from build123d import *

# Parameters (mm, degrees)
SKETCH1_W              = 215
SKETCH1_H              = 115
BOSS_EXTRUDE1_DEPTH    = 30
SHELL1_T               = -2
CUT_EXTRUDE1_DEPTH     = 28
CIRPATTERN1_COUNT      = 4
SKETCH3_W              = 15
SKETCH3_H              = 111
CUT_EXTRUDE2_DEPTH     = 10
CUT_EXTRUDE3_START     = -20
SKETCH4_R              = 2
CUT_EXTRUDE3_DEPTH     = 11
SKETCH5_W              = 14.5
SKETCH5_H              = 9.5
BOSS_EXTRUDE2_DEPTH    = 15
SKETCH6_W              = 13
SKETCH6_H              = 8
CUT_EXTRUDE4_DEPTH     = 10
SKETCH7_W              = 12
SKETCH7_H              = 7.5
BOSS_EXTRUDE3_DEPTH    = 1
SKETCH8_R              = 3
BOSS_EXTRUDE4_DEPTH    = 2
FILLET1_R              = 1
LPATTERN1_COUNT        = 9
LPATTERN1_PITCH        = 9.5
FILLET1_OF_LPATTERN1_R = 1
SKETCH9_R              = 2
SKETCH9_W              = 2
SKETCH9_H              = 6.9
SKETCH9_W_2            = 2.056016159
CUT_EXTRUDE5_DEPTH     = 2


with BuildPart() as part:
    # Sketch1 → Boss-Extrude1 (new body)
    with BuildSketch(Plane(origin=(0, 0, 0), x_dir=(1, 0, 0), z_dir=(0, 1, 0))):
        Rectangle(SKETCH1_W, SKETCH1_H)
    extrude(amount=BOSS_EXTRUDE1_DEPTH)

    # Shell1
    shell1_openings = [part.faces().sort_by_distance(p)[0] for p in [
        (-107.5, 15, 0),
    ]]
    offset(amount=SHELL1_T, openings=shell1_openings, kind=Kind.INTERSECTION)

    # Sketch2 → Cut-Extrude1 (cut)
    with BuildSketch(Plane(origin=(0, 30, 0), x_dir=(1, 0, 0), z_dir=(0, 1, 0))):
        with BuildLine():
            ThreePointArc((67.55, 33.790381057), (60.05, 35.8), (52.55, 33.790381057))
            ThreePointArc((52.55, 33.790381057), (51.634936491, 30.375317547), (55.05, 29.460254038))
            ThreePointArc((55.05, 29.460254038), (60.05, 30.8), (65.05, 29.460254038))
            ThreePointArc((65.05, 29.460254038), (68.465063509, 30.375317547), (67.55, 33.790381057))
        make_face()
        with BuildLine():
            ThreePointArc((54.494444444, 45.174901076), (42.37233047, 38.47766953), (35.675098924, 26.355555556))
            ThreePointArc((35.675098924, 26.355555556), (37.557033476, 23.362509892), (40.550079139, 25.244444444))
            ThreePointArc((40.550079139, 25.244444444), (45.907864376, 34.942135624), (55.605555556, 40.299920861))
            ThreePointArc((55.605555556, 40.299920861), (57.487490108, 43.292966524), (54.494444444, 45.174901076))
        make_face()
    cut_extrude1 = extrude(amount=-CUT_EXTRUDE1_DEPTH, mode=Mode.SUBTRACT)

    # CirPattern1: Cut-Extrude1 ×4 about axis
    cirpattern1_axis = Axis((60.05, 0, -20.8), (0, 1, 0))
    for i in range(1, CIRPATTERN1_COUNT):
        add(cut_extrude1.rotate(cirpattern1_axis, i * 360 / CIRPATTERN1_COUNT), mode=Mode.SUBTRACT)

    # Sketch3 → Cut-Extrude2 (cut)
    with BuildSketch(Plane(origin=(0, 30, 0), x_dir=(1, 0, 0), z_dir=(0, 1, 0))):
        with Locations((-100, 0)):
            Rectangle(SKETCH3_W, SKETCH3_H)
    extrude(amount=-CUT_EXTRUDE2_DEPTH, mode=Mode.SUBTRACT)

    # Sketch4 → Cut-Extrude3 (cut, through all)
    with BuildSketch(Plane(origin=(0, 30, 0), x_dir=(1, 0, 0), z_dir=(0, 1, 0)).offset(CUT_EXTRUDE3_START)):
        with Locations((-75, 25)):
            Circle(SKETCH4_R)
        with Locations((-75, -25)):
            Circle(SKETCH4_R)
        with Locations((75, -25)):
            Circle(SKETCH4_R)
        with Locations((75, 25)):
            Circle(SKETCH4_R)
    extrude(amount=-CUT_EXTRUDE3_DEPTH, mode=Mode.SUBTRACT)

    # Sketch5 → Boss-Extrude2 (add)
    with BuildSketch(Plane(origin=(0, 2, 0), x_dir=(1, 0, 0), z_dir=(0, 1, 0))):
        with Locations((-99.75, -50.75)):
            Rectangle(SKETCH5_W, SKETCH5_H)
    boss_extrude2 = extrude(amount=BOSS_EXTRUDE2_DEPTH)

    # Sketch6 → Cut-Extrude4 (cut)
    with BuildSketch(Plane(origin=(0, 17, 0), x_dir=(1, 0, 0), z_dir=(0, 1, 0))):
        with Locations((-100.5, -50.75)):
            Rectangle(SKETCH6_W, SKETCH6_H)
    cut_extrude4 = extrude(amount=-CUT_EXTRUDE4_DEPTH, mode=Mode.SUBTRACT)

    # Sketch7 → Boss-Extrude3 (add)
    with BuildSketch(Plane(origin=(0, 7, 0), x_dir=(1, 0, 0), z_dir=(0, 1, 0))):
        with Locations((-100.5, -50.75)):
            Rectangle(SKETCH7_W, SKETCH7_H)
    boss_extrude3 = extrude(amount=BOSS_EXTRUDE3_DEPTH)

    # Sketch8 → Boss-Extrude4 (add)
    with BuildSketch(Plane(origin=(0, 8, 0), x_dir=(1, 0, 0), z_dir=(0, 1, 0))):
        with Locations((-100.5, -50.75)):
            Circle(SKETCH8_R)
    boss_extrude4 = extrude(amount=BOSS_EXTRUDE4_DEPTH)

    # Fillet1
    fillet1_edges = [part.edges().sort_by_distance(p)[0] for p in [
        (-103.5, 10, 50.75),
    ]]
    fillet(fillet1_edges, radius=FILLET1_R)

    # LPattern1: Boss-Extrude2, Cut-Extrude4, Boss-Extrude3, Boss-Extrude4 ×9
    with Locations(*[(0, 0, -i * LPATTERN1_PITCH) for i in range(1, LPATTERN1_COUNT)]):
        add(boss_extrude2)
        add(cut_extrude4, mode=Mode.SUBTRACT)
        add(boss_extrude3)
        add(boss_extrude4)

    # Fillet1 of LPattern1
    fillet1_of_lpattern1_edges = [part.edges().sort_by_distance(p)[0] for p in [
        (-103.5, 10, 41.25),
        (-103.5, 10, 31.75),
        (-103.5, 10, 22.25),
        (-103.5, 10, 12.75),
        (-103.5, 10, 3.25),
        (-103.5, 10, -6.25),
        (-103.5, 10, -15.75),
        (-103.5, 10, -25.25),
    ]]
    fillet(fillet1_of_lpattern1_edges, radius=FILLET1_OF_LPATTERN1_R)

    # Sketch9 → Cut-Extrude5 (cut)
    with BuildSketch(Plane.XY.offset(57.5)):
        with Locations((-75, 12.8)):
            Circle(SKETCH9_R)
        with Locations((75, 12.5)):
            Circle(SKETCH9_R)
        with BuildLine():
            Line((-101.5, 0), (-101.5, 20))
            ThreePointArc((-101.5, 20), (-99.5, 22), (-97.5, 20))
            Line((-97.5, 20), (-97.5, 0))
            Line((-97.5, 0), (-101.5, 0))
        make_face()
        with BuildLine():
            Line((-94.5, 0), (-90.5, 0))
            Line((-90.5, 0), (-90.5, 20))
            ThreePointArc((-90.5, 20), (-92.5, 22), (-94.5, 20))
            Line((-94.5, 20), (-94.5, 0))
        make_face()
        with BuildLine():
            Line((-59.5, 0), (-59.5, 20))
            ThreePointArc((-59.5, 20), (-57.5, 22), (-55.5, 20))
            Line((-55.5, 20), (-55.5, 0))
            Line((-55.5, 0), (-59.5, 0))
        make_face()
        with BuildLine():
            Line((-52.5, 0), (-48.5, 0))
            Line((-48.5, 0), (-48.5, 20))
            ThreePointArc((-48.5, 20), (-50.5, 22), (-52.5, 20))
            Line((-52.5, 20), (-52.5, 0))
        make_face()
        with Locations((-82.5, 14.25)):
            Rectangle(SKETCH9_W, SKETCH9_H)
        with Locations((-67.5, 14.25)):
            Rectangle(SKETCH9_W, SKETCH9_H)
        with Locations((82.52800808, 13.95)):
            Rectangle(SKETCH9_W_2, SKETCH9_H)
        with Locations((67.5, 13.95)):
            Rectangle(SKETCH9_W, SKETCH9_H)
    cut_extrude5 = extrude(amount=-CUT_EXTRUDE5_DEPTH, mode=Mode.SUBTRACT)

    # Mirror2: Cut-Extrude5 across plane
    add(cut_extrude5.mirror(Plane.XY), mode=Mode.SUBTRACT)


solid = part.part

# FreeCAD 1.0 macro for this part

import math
import FreeCAD as App
import Part
import Sketcher
from FreeCAD import Vector
Q = App.Units.Quantity


def edges_at(feature, points):
    """Names of the edges that pass closest to the given points."""
    edges = feature.Shape.Edges
    near = lambda p: min(range(len(edges)), key=lambda i: edges[i].distToShape(Part.Vertex(*p))[0])
    return sorted({f"Edge{near(p) + 1}" for p in points})


def faces_at(feature, points):
    """Names of the faces that lie closest to the given points."""
    faces = feature.Shape.Faces
    near = lambda p: min(range(len(faces)), key=lambda i: faces[i].distToShape(Part.Vertex(*p))[0])
    return sorted({f"Face{near(p) + 1}" for p in points})

doc = App.newDocument("Part")
body = doc.addObject("PartDesign::Body", "Body")

# Sketch on XZ plane
sketch1 = body.newObject("Sketcher::SketchObject", "Sketch")
sketch1.AttachmentSupport = (doc.getObject("XZ_Plane"), [""])
sketch1.MapMode = "FlatFace"
sketch1.addGeometry([
    Part.LineSegment(Vector(-108, -58, 0), Vector(-108, 58, 0)),
    Part.LineSegment(Vector(-108, 58, 0), Vector(108, 58, 0)),
    Part.LineSegment(Vector(108, 58, 0), Vector(108, -58, 0)),
    Part.LineSegment(Vector(108, -58, 0), Vector(-108, -58, 0)),
], False)
sketch1.addConstraint([
    Sketcher.Constraint("Coincident", 0, 2, 1, 1),
    Sketcher.Constraint("Coincident", 1, 2, 2, 1),
    Sketcher.Constraint("Coincident", 2, 2, 3, 1),
    Sketcher.Constraint("Coincident", 3, 2, 0, 1),
    Sketcher.Constraint("Vertical", 0),
    Sketcher.Constraint("Horizontal", 1),
    Sketcher.Constraint("Vertical", 2),
    Sketcher.Constraint("Horizontal", 3),
    Sketcher.Constraint("Symmetric", 0, 2, 2, 2, -1, 1),
    Sketcher.Constraint("DistanceX", 1, 1, 1, 2, Q("215 mm")),
    Sketcher.Constraint("DistanceY", 0, 1, 0, 2, Q("115 mm")),
])
pad1 = body.newObject("PartDesign::Pad", "Pad")
pad1.Profile = sketch1
pad1.Length = 30
pad1.Reversed = True
doc.recompute()

thickness = body.newObject("PartDesign::Thickness", "Thickness")
thickness.Base = (pad1, faces_at(pad1, [(-107.5, 15, 0)]))
thickness.Value = 2
thickness.Reversed = True
thickness.Join = "Intersection"

# Sketch on XZ plane
sketch2 = body.newObject("Sketcher::SketchObject", "Sketch001")
sketch2.AttachmentSupport = (doc.getObject("XZ_Plane"), [""])
sketch2.MapMode = "FlatFace"
sketch2.AttachmentOffset = App.Placement(Vector(0, 0, -30), App.Rotation())
sketch2.addGeometry([
    Part.ArcOfCircle(Part.Circle(Vector(60, -20.8, 0), Vector(0, 0, 1), 15), math.radians(-120), math.radians(-60)),  # 0
    Part.ArcOfCircle(Part.Circle(Vector(53.8, -31.6, 0), Vector(0, 0, 1), 2.5), math.radians(60), math.radians(240)),  # 1
    Part.ArcOfCircle(Part.Circle(Vector(60, -20.8, 0), Vector(0, 0, 1), 10), math.radians(-120), math.radians(-60)),  # 2
    Part.ArcOfCircle(Part.Circle(Vector(66.3, -31.6, 0), Vector(0, 0, 1), 2.5), math.radians(-60), math.radians(120)),  # 3
    Part.ArcOfCircle(Part.Circle(Vector(60, -20.8, 0), Vector(0, 0, 1), 25), math.radians(-167), math.radians(-103)),  # 4
    Part.ArcOfCircle(Part.Circle(Vector(38.1, -25.8, 0), Vector(0, 0, 1), 2.5), math.radians(13), math.radians(193)),  # 5
    Part.ArcOfCircle(Part.Circle(Vector(60, -20.8, 0), Vector(0, 0, 1), 20), math.radians(-167), math.radians(-103)),  # 6
    Part.ArcOfCircle(Part.Circle(Vector(55, -42.7, 0), Vector(0, 0, 1), 2.5), math.radians(-103), math.radians(77)),  # 7
], False)
sketch2.addConstraint([
    Sketcher.Constraint("Tangent", 0, 1, 1, 2),
    Sketcher.Constraint("Tangent", 1, 1, 2, 1),
    Sketcher.Constraint("Tangent", 2, 2, 3, 2),
    Sketcher.Constraint("Tangent", 3, 1, 0, 2),
    Sketcher.Constraint("Tangent", 4, 1, 5, 2),
    Sketcher.Constraint("Tangent", 5, 1, 6, 1),
    Sketcher.Constraint("Tangent", 6, 2, 7, 2),
    Sketcher.Constraint("Tangent", 7, 1, 4, 2),
    Sketcher.Constraint("Coincident", 2, 3, 0, 3),
    Sketcher.Constraint("Coincident", 4, 3, 0, 3),
    Sketcher.Constraint("Coincident", 6, 3, 0, 3),
    Sketcher.Constraint("Equal", 3, 5),
    Sketcher.Constraint("Horizontal", 1, 3, 3, 3),
    Sketcher.Constraint("Vertical", 7, 3, 1, 1),
    Sketcher.Constraint("Radius", 0, Q("15 mm")),
    Sketcher.Constraint("Radius", 2, Q("10 mm")),
    Sketcher.Constraint("Radius", 4, Q("25 mm")),
    Sketcher.Constraint("DistanceY", 5, 3, 4, 3, Q("5 mm")),
    Sketcher.Constraint("DistanceX", 7, 3, 4, 3, Q("5 mm")),
    Sketcher.Constraint("DistanceY", 0, 3, -1, 1, Q("20.8 mm")),
    Sketcher.Constraint("DistanceX", -1, 1, 1, 3, Q("53.8 mm")),
])
pocket1 = body.newObject("PartDesign::Pocket", "Pocket")
pocket1.Profile = sketch2
pocket1.Length = 28
pocket1.Reversed = True
doc.recompute()

datumline = body.newObject("PartDesign::Line", "DatumLine")
datumline.Placement = App.Placement(Vector(60.05, 0, -20.8), App.Rotation(Vector(0, 0, 1), Vector(0, 1, 0)))
polarpattern = body.newObject("PartDesign::PolarPattern", "PolarPattern")
polarpattern.Originals = [pocket1]
polarpattern.Axis = (datumline, [""])
polarpattern.Angle = 360
polarpattern.Occurrences = 4
body.Tip = polarpattern

# Sketch on XZ plane
sketch3 = body.newObject("Sketcher::SketchObject", "Sketch002")
sketch3.AttachmentSupport = (doc.getObject("XZ_Plane"), [""])
sketch3.MapMode = "FlatFace"
sketch3.AttachmentOffset = App.Placement(Vector(0, 0, -30), App.Rotation())
sketch3.addGeometry([
    Part.LineSegment(Vector(-108, -56, 0), Vector(-108, 56, 0)),
    Part.LineSegment(Vector(-108, 56, 0), Vector(-92, 56, 0)),
    Part.LineSegment(Vector(-92, 56, 0), Vector(-92, -56, 0)),
    Part.LineSegment(Vector(-92, -56, 0), Vector(-108, -56, 0)),
], False)
sketch3.addConstraint([
    Sketcher.Constraint("Coincident", 0, 2, 1, 1),
    Sketcher.Constraint("Coincident", 1, 2, 2, 1),
    Sketcher.Constraint("Coincident", 2, 2, 3, 1),
    Sketcher.Constraint("Coincident", 3, 2, 0, 1),
    Sketcher.Constraint("Vertical", 0),
    Sketcher.Constraint("Horizontal", 1),
    Sketcher.Constraint("Vertical", 2),
    Sketcher.Constraint("Horizontal", 3),
    Sketcher.Constraint("DistanceX", 1, 1, 1, 2, Q("15 mm")),
    Sketcher.Constraint("DistanceY", 0, 1, 0, 2, Q("111 mm")),
    Sketcher.Constraint("DistanceX", 0, 2, -1, 1, Q("107.5 mm")),
    Sketcher.Constraint("DistanceY", -1, 1, 0, 2, Q("55.5 mm")),
])
pocket2 = body.newObject("PartDesign::Pocket", "Pocket001")
pocket2.Profile = sketch3
pocket2.Length = 10
pocket2.Reversed = True

# Sketch on XZ plane
sketch4 = body.newObject("Sketcher::SketchObject", "Sketch003")
sketch4.AttachmentSupport = (doc.getObject("XZ_Plane"), [""])
sketch4.MapMode = "FlatFace"
sketch4.AttachmentOffset = App.Placement(Vector(0, 0, -10), App.Rotation())
sketch4.addGeometry([
    Part.Circle(Vector(-75, -25, 0), Vector(0, 0, 1), 2),
    Part.Circle(Vector(-75, 25, 0), Vector(0, 0, 1), 2),
    Part.Circle(Vector(75, 25, 0), Vector(0, 0, 1), 2),
    Part.Circle(Vector(75, -25, 0), Vector(0, 0, 1), 2),
], False)
sketch4.addConstraint([
    Sketcher.Constraint("Equal", 0, 1),
    Sketcher.Constraint("Equal", 1, 2),
    Sketcher.Constraint("Equal", 2, 3),
    Sketcher.Constraint("Symmetric", 0, 3, 2, 3, -1, 1),
    Sketcher.Constraint("Symmetric", 1, 3, 3, 3, -1, 1),
    Sketcher.Constraint("Symmetric", 1, 3, 2, 3, -2),
    Sketcher.Constraint("Diameter", 0, Q("4 mm")),
    Sketcher.Constraint("DistanceX", 0, 3, -1, 1, Q("75 mm")),
    Sketcher.Constraint("DistanceY", 0, 3, -1, 1, Q("25 mm")),
])
pocket3 = body.newObject("PartDesign::Pocket", "Pocket002")
pocket3.Profile = sketch4
pocket3.Type = "ThroughAll"
pocket3.Reversed = True

# Sketch on XZ plane
sketch5 = body.newObject("Sketcher::SketchObject", "Sketch004")
sketch5.AttachmentSupport = (doc.getObject("XZ_Plane"), [""])
sketch5.MapMode = "FlatFace"
sketch5.AttachmentOffset = App.Placement(Vector(0, 0, -2), App.Rotation())
sketch5.addGeometry([
    Part.LineSegment(Vector(-107, 46, 0), Vector(-107, 56, 0)),
    Part.LineSegment(Vector(-107, 56, 0), Vector(-92, 56, 0)),
    Part.LineSegment(Vector(-92, 56, 0), Vector(-92, 46, 0)),
    Part.LineSegment(Vector(-92, 46, 0), Vector(-107, 46, 0)),
], False)
sketch5.addConstraint([
    Sketcher.Constraint("Coincident", 0, 2, 1, 1),
    Sketcher.Constraint("Coincident", 1, 2, 2, 1),
    Sketcher.Constraint("Coincident", 2, 2, 3, 1),
    Sketcher.Constraint("Coincident", 3, 2, 0, 1),
    Sketcher.Constraint("Vertical", 0),
    Sketcher.Constraint("Horizontal", 1),
    Sketcher.Constraint("Vertical", 2),
    Sketcher.Constraint("Horizontal", 3),
    Sketcher.Constraint("DistanceX", 1, 1, 1, 2, Q("14.5 mm")),
    Sketcher.Constraint("DistanceY", 0, 1, 0, 2, Q("9.5 mm")),
    Sketcher.Constraint("DistanceX", 0, 2, -1, 1, Q("107 mm")),
    Sketcher.Constraint("DistanceY", -1, 1, 2, 2, Q("46 mm")),
])
pad2 = body.newObject("PartDesign::Pad", "Pad001")
pad2.Profile = sketch5
pad2.Length = 15
pad2.Reversed = True

# Sketch on XZ plane
sketch6 = body.newObject("Sketcher::SketchObject", "Sketch005")
sketch6.AttachmentSupport = (doc.getObject("XZ_Plane"), [""])
sketch6.MapMode = "FlatFace"
sketch6.AttachmentOffset = App.Placement(Vector(0, 0, -17), App.Rotation())
sketch6.addGeometry([
    Part.LineSegment(Vector(-107, 47, 0), Vector(-107, 55, 0)),
    Part.LineSegment(Vector(-107, 55, 0), Vector(-94, 55, 0)),
    Part.LineSegment(Vector(-94, 55, 0), Vector(-94, 47, 0)),
    Part.LineSegment(Vector(-94, 47, 0), Vector(-107, 47, 0)),
], False)
sketch6.addConstraint([
    Sketcher.Constraint("Coincident", 0, 2, 1, 1),
    Sketcher.Constraint("Coincident", 1, 2, 2, 1),
    Sketcher.Constraint("Coincident", 2, 2, 3, 1),
    Sketcher.Constraint("Coincident", 3, 2, 0, 1),
    Sketcher.Constraint("Vertical", 0),
    Sketcher.Constraint("Horizontal", 1),
    Sketcher.Constraint("Vertical", 2),
    Sketcher.Constraint("Horizontal", 3),
    Sketcher.Constraint("DistanceX", 1, 1, 1, 2, Q("13 mm")),
    Sketcher.Constraint("DistanceY", 0, 1, 0, 2, Q("8 mm")),
    Sketcher.Constraint("DistanceX", 0, 2, -1, 1, Q("107 mm")),
    Sketcher.Constraint("DistanceY", -1, 1, 0, 2, Q("54.75 mm")),
])
pocket4 = body.newObject("PartDesign::Pocket", "Pocket003")
pocket4.Profile = sketch6
pocket4.Length = 10
pocket4.Reversed = True

# Sketch on XZ plane
sketch7 = body.newObject("Sketcher::SketchObject", "Sketch006")
sketch7.AttachmentSupport = (doc.getObject("XZ_Plane"), [""])
sketch7.MapMode = "FlatFace"
sketch7.AttachmentOffset = App.Placement(Vector(0, 0, -7), App.Rotation())
sketch7.addGeometry([
    Part.LineSegment(Vector(-106, 47, 0), Vector(-106, 54, 0)),
    Part.LineSegment(Vector(-106, 54, 0), Vector(-94, 54, 0)),
    Part.LineSegment(Vector(-94, 54, 0), Vector(-94, 47, 0)),
    Part.LineSegment(Vector(-94, 47, 0), Vector(-106, 47, 0)),
], False)
sketch7.addConstraint([
    Sketcher.Constraint("Coincident", 0, 2, 1, 1),
    Sketcher.Constraint("Coincident", 1, 2, 2, 1),
    Sketcher.Constraint("Coincident", 2, 2, 3, 1),
    Sketcher.Constraint("Coincident", 3, 2, 0, 1),
    Sketcher.Constraint("Vertical", 0),
    Sketcher.Constraint("Horizontal", 1),
    Sketcher.Constraint("Vertical", 2),
    Sketcher.Constraint("Horizontal", 3),
    Sketcher.Constraint("DistanceX", 1, 1, 1, 2, Q("12 mm")),
    Sketcher.Constraint("DistanceY", 0, 1, 0, 2, Q("7.5 mm")),
    Sketcher.Constraint("DistanceY", -1, 1, 2, 2, Q("47 mm")),
    Sketcher.Constraint("DistanceX", 0, 2, -1, 1, Q("106.5 mm")),
])
pad3 = body.newObject("PartDesign::Pad", "Pad002")
pad3.Profile = sketch7
pad3.Length = 1
pad3.Reversed = True

# Sketch on XZ plane
sketch8 = body.newObject("Sketcher::SketchObject", "Sketch007")
sketch8.AttachmentSupport = (doc.getObject("XZ_Plane"), [""])
sketch8.MapMode = "FlatFace"
sketch8.AttachmentOffset = App.Placement(Vector(0, 0, -8), App.Rotation())
sketch8.addGeometry(Part.Circle(Vector(-100.5, 50.8, 0), Vector(0, 0, 1), 3), False)
sketch8.addConstraint([
    Sketcher.Constraint("Diameter", 0, Q("6 mm")),
    Sketcher.Constraint("DistanceX", 0, 3, -1, 1, Q("100.5 mm")),
    Sketcher.Constraint("DistanceY", -1, 1, 0, 3, Q("50.75 mm")),
])
pad4 = body.newObject("PartDesign::Pad", "Pad003")
pad4.Profile = sketch8
pad4.Length = 2
pad4.Reversed = True
doc.recompute()

fillet = body.newObject("PartDesign::Fillet", "Fillet")
fillet.Base = (pad4, edges_at(pad4, [(-103.5, 10, 50.75)]))
fillet.Radius = 1
doc.recompute()

linearpattern = body.newObject("PartDesign::LinearPattern", "LinearPattern")
linearpattern.Originals = [pad2, pocket4, pad3, pad4]
linearpattern.Direction = (doc.getObject("Z_Axis"), [""])
linearpattern.Mode = "offset"
linearpattern.Offset = 9.5
linearpattern.Occurrences = 9
linearpattern.Reversed = True
body.Tip = linearpattern
doc.recompute()

fillet2 = body.newObject("PartDesign::Fillet", "Fillet001")
fillet2.Base = (linearpattern, edges_at(linearpattern, [
    (-103.5, 10, 41.25),
    (-103.5, 10, 31.75),
    (-103.5, 10, 22.25),
    (-103.5, 10, 12.75),
    (-103.5, 10, 3.25),
    (-103.5, 10, -6.25),
    (-103.5, 10, -15.75),
    (-103.5, 10, -25.25),
]))
fillet2.Radius = 1

# Sketch on XY plane
sketch9 = body.newObject("Sketcher::SketchObject", "Sketch008")
sketch9.AttachmentSupport = (doc.getObject("XY_Plane"), [""])
sketch9.MapMode = "FlatFace"
sketch9.AttachmentOffset = App.Placement(Vector(0, 0, 57.5), App.Rotation())
sketch9.addGeometry([
    Part.Circle(Vector(-75, 12.8, 0), Vector(0, 0, 1), 2),  # 0
    Part.Circle(Vector(75, 12.5, 0), Vector(0, 0, 1), 2),  # 1
    Part.LineSegment(Vector(-101.5, 20, 0), Vector(-101.5, 0, 0)),  # 2
    Part.LineSegment(Vector(-101.5, 0, 0), Vector(-97.5, 0, 0)),  # 3
    Part.LineSegment(Vector(-97.5, 0, 0), Vector(-97.5, 20, 0)),  # 4
    Part.ArcOfCircle(Part.Circle(Vector(-99.5, 20, 0), Vector(0, 0, 1), 2), math.radians(0), math.radians(180)),  # 5
    Part.LineSegment(Vector(-94.5, 0, 0), Vector(-90.5, 0, 0)),  # 6
    Part.LineSegment(Vector(-90.5, 0, 0), Vector(-90.5, 20, 0)),  # 7
    Part.ArcOfCircle(Part.Circle(Vector(-92.5, 20, 0), Vector(0, 0, 1), 2), math.radians(0), math.radians(180)),  # 8
    Part.LineSegment(Vector(-94.5, 20, 0), Vector(-94.5, 0, 0)),  # 9
    Part.LineSegment(Vector(-59.5, 20, 0), Vector(-59.5, 0, 0)),  # 10
    Part.LineSegment(Vector(-59.5, 0, 0), Vector(-55.5, 0, 0)),  # 11
    Part.LineSegment(Vector(-55.5, 0, 0), Vector(-55.5, 20, 0)),  # 12
    Part.ArcOfCircle(Part.Circle(Vector(-57.5, 20, 0), Vector(0, 0, 1), 2), math.radians(0), math.radians(180)),  # 13
    Part.LineSegment(Vector(-52.5, 0, 0), Vector(-48.5, 0, 0)),  # 14
    Part.LineSegment(Vector(-48.5, 0, 0), Vector(-48.5, 20, 0)),  # 15
    Part.ArcOfCircle(Part.Circle(Vector(-50.5, 20, 0), Vector(0, 0, 1), 2), math.radians(0), math.radians(180)),  # 16
    Part.LineSegment(Vector(-52.5, 20, 0), Vector(-52.5, 0, 0)),  # 17
    Part.LineSegment(Vector(-83.5, 17.7, 0), Vector(-83.5, 10.8, 0)),  # 18
    Part.LineSegment(Vector(-83.5, 10.8, 0), Vector(-81.5, 10.8, 0)),  # 19
    Part.LineSegment(Vector(-81.5, 10.8, 0), Vector(-81.5, 17.7, 0)),  # 20
    Part.LineSegment(Vector(-81.5, 17.7, 0), Vector(-83.5, 17.7, 0)),  # 21
    Part.LineSegment(Vector(-68.5, 17.7, 0), Vector(-68.5, 10.8, 0)),  # 22
    Part.LineSegment(Vector(-68.5, 10.8, 0), Vector(-66.5, 10.8, 0)),  # 23
    Part.LineSegment(Vector(-66.5, 10.8, 0), Vector(-66.5, 17.7, 0)),  # 24
    Part.LineSegment(Vector(-66.5, 17.7, 0), Vector(-68.5, 17.7, 0)),  # 25
    Part.LineSegment(Vector(81.5, 17.4, 0), Vector(81.5, 10.5, 0)),  # 26
    Part.LineSegment(Vector(81.5, 10.5, 0), Vector(83.6, 10.5, 0)),  # 27
    Part.LineSegment(Vector(83.6, 10.5, 0), Vector(83.6, 17.4, 0)),  # 28
    Part.LineSegment(Vector(83.6, 17.4, 0), Vector(81.5, 17.4, 0)),  # 29
    Part.LineSegment(Vector(66.5, 17.4, 0), Vector(66.5, 10.5, 0)),  # 30
    Part.LineSegment(Vector(66.5, 10.5, 0), Vector(68.5, 10.5, 0)),  # 31
    Part.LineSegment(Vector(68.5, 10.5, 0), Vector(68.5, 17.4, 0)),  # 32
    Part.LineSegment(Vector(68.5, 17.4, 0), Vector(66.5, 17.4, 0)),  # 33
], False)
sketch9.addConstraint([
    Sketcher.Constraint("Coincident", 2, 2, 3, 1),
    Sketcher.Constraint("Coincident", 3, 2, 4, 1),
    Sketcher.Constraint("Tangent", 4, 2, 5, 1),
    Sketcher.Constraint("Tangent", 5, 2, 2, 1),
    Sketcher.Constraint("Coincident", 6, 2, 7, 1),
    Sketcher.Constraint("Tangent", 7, 2, 8, 1),
    Sketcher.Constraint("Tangent", 8, 2, 9, 1),
    Sketcher.Constraint("Coincident", 9, 2, 6, 1),
    Sketcher.Constraint("Coincident", 10, 2, 11, 1),
    Sketcher.Constraint("Coincident", 11, 2, 12, 1),
    Sketcher.Constraint("Tangent", 12, 2, 13, 1),
    Sketcher.Constraint("Tangent", 13, 2, 10, 1),
    Sketcher.Constraint("Coincident", 14, 2, 15, 1),
    Sketcher.Constraint("Tangent", 15, 2, 16, 1),
    Sketcher.Constraint("Tangent", 16, 2, 17, 1),
    Sketcher.Constraint("Coincident", 17, 2, 14, 1),
    Sketcher.Constraint("Coincident", 18, 2, 19, 1),
    Sketcher.Constraint("Coincident", 19, 2, 20, 1),
    Sketcher.Constraint("Coincident", 20, 2, 21, 1),
    Sketcher.Constraint("Coincident", 21, 2, 18, 1),
    Sketcher.Constraint("Coincident", 22, 2, 23, 1),
    Sketcher.Constraint("Coincident", 23, 2, 24, 1),
    Sketcher.Constraint("Coincident", 24, 2, 25, 1),
    Sketcher.Constraint("Coincident", 25, 2, 22, 1),
    Sketcher.Constraint("Coincident", 26, 2, 27, 1),
    Sketcher.Constraint("Coincident", 27, 2, 28, 1),
    Sketcher.Constraint("Coincident", 28, 2, 29, 1),
    Sketcher.Constraint("Coincident", 29, 2, 26, 1),
    Sketcher.Constraint("Coincident", 30, 2, 31, 1),
    Sketcher.Constraint("Coincident", 31, 2, 32, 1),
    Sketcher.Constraint("Coincident", 32, 2, 33, 1),
    Sketcher.Constraint("Coincident", 33, 2, 30, 1),
    Sketcher.Constraint("Vertical", 2),
    Sketcher.Constraint("Horizontal", 3),
    Sketcher.Constraint("Vertical", 4),
    Sketcher.Constraint("Horizontal", 6),
    Sketcher.Constraint("Vertical", 7),
    Sketcher.Constraint("Vertical", 9),
    Sketcher.Constraint("Vertical", 10),
    Sketcher.Constraint("Horizontal", 11),
    Sketcher.Constraint("Vertical", 12),
    Sketcher.Constraint("Horizontal", 14),
    Sketcher.Constraint("Vertical", 15),
    Sketcher.Constraint("Vertical", 17),
    Sketcher.Constraint("Vertical", 18),
    Sketcher.Constraint("Horizontal", 19),
    Sketcher.Constraint("Vertical", 20),
    Sketcher.Constraint("Horizontal", 21),
    Sketcher.Constraint("Vertical", 22),
    Sketcher.Constraint("Horizontal", 23),
    Sketcher.Constraint("Vertical", 24),
    Sketcher.Constraint("Horizontal", 25),
    Sketcher.Constraint("Vertical", 26),
    Sketcher.Constraint("Horizontal", 27),
    Sketcher.Constraint("Vertical", 28),
    Sketcher.Constraint("Horizontal", 29),
    Sketcher.Constraint("Vertical", 30),
    Sketcher.Constraint("Horizontal", 31),
    Sketcher.Constraint("Vertical", 32),
    Sketcher.Constraint("Horizontal", 33),
    Sketcher.Constraint("Equal", 0, 1),
    Sketcher.Constraint("Equal", 1, 5),
    Sketcher.Constraint("Equal", 5, 8),
    Sketcher.Constraint("Equal", 8, 13),
    Sketcher.Constraint("Equal", 13, 16),
    Sketcher.Constraint("PointOnObject", 2, 2, -1),
    Sketcher.Constraint("PointOnObject", 6, 2, -1),
    Sketcher.Constraint("PointOnObject", 10, 2, -1),
    Sketcher.Constraint("PointOnObject", 14, 2, -1),
    Sketcher.Constraint("Horizontal", 5, 3, 8, 3),
    Sketcher.Constraint("Horizontal", 8, 3, 13, 3),
    Sketcher.Constraint("Horizontal", 13, 3, 16, 3),
    Sketcher.Constraint("Horizontal", 19, 2, 22, 2),
    Sketcher.Constraint("Horizontal", 21, 2, 24, 2),
    Sketcher.Constraint("Horizontal", 27, 2, 30, 2),
    Sketcher.Constraint("Horizontal", 29, 2, 32, 2),
    Sketcher.Constraint("Equal", 21, 23),
    Sketcher.Constraint("Equal", 25, 31),
    Sketcher.Constraint("Equal", 24, 26),
    Sketcher.Constraint("Diameter", 0, Q("4 mm")),
    Sketcher.Constraint("DistanceX", 19, 1, 19, 2, Q("2 mm")),
    Sketcher.Constraint("DistanceY", 2, 2, 2, 1, Q("20 mm")),
    Sketcher.Constraint("DistanceY", 18, 2, 18, 1, Q("6.9 mm")),
    Sketcher.Constraint("DistanceX", 0, 3, -1, 1, Q("75 mm")),
    Sketcher.Constraint("DistanceX", -1, 1, 1, 3, Q("75 mm")),
    Sketcher.Constraint("DistanceX", 5, 3, 8, 3, Q("7 mm")),
    Sketcher.Constraint("DistanceX", 8, 3, 13, 3, Q("35 mm")),
    Sketcher.Constraint("DistanceX", 13, 3, 16, 3, Q("7 mm")),
    Sketcher.Constraint("DistanceY", 18, 2, 0, 3, Q("2 mm")),
    Sketcher.Constraint("DistanceX", 7, 2, 18, 2, Q("7 mm")),
    Sketcher.Constraint("DistanceX", 22, 2, 13, 2, Q("9 mm")),
    Sketcher.Constraint("DistanceY", 26, 2, 1, 3, Q("2 mm")),
    Sketcher.Constraint("DistanceX", 15, 2, 26, 2, Q("130 mm")),
    Sketcher.Constraint("DistanceX", 30, 2, 26, 2, Q("15 mm")),
    Sketcher.Constraint("DistanceY", -1, 1, 0, 3, Q("12.8 mm")),
    Sketcher.Constraint("DistanceY", -1, 1, 1, 3, Q("12.5 mm")),
    Sketcher.Constraint("DistanceX", 5, 3, -1, 1, Q("99.5 mm")),
    Sketcher.Constraint("DistanceX", 27, 1, 27, 2, Q("2.056016 mm")),
])
pocket5 = body.newObject("PartDesign::Pocket", "Pocket004")
pocket5.Profile = sketch9
pocket5.Length = 2
doc.recompute()

mirrored = body.newObject("PartDesign::Mirrored", "Mirrored")
mirrored.Originals = [pocket5]
mirrored.MirrorPlane = (doc.getObject("XY_Plane"), [""])
body.Tip = mirrored

doc.recompute()
